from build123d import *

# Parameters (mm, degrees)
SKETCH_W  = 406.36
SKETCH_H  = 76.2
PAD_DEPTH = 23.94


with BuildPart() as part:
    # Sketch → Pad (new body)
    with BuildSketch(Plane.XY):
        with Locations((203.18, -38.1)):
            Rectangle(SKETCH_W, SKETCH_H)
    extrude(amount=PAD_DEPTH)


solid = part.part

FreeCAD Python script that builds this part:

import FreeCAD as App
import Part
import Sketcher

V = App.Vector
Q = App.Units.Quantity


def add_polygon(sketch, points):
    """Adds a closed chain of lines whose ends are joined by coincident constraints."""
    first, n = sketch.GeometryCount, len(points)
    for a, b in zip(points, points[1:] + points[:1]):
        sketch.addGeometry(Part.LineSegment(App.Vector(*a, 0), App.Vector(*b, 0)), False)
    for i in range(n):
        sketch.addConstraint(Sketcher.Constraint("Coincident", first + i, 2, first + (i + 1) % n, 1))

doc = App.newDocument("Part")
params = doc.addObject("Spreadsheet::Sheet", "Params")
for row, (alias, value) in enumerate([
    ("sketch1_height", "3 in"),
    ("pad1_length", "23.94 mm"),
], start=1):
    params.set(f"A{row}", alias)
    params.set(f"B{row}", "=" + value)
    params.setAlias(f"B{row}", alias)

body = doc.addObject("PartDesign::Body", "Body")

sketch1 = body.newObject("Sketcher::SketchObject", "Sketch")
sketch1.AttachmentSupport = (doc.getObject("XY_Plane"), [""])
sketch1.MapMode = "FlatFace"
add_polygon(sketch1, [(0, 0), (0, -76), (406, -76), (406, 0)])
sketch1.addConstraint(Sketcher.Constraint("Vertical", 0))
sketch1.addConstraint(Sketcher.Constraint("Horizontal", 1))
sketch1.addConstraint(Sketcher.Constraint("Vertical", 2))
sketch1.addConstraint(Sketcher.Constraint("Horizontal", 3))
sketch1.addConstraint(Sketcher.Constraint("Coincident", 3, 2, -1, 1))
sketch1.addConstraint(Sketcher.Constraint("DistanceY", 0, 2, 0, 1, Q("3 in")))
sketch1.addConstraint(Sketcher.Constraint("DistanceX", 1, 1, 1, 2, Q("406.36 mm")))
sketch1.setExpression("Constraints[9]", "Params.sketch1_height")
pad1 = body.newObject("PartDesign::Pad", "Pad")
pad1.Profile = sketch1
pad1.setExpression("Length", "Params.pad1_length")

doc.recompute()
